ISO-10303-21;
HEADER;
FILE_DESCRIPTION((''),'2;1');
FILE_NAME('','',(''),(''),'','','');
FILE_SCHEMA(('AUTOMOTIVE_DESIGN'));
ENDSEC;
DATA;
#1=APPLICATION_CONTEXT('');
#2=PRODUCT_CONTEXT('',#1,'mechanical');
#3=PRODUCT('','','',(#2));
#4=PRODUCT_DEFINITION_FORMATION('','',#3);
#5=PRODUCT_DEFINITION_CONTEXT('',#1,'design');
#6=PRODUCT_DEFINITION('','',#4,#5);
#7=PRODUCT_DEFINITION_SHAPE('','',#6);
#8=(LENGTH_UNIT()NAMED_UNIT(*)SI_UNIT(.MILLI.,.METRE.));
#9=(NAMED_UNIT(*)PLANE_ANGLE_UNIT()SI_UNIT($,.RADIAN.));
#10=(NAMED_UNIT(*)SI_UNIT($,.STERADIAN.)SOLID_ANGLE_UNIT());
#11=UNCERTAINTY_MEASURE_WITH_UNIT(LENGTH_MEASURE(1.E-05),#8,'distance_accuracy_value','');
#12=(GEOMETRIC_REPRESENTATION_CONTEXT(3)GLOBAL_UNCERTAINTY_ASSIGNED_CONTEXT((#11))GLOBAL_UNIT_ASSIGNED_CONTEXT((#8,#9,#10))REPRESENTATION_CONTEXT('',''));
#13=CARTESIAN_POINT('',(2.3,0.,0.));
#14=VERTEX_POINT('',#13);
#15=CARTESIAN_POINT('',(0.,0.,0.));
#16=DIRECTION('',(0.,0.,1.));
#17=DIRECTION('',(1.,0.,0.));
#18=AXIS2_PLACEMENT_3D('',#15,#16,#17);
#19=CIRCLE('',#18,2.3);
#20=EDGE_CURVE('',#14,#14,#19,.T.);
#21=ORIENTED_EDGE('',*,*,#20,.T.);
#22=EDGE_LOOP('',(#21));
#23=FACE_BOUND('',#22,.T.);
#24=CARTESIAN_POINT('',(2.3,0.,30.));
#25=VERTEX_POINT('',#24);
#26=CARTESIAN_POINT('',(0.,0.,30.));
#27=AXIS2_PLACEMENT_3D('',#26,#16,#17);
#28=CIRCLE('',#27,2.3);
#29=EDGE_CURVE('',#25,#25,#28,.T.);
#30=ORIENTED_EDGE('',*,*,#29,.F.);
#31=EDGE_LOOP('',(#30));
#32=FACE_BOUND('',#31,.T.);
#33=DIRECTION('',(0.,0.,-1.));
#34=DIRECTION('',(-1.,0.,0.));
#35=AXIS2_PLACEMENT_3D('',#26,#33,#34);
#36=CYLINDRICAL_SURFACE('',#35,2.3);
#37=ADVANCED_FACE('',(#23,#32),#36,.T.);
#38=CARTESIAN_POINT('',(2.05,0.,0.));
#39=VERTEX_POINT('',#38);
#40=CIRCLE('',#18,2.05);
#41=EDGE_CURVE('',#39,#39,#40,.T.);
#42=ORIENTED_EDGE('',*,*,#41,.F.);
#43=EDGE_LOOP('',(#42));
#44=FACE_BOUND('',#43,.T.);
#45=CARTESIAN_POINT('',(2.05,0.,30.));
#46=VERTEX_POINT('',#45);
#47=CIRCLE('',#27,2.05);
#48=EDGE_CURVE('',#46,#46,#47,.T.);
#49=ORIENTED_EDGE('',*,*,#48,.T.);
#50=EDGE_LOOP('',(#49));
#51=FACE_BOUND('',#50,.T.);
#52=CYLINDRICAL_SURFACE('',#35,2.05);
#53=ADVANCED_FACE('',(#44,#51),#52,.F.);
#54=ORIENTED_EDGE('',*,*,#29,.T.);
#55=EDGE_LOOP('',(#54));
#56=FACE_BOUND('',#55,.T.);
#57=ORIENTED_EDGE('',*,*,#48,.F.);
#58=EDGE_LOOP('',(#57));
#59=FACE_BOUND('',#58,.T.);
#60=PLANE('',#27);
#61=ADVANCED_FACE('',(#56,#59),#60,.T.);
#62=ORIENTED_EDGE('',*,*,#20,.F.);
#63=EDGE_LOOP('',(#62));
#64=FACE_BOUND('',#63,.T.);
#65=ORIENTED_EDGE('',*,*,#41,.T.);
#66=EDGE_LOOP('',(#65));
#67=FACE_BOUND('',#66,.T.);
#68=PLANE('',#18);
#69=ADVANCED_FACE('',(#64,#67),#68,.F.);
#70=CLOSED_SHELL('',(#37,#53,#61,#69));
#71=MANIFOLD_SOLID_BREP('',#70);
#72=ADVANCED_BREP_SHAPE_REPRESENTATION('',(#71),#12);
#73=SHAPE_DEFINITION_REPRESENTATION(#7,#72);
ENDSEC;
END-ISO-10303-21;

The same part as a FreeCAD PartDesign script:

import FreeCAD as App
import Part
import Sketcher

V = App.Vector
Q = App.Units.Quantity

doc = App.newDocument("Part")
body = doc.addObject("PartDesign::Body", "Body")

sketch1 = body.newObject("Sketcher::SketchObject", "Sketch")
sketch1.AttachmentSupport = (doc.getObject("XY_Plane"), [""])
sketch1.MapMode = "FlatFace"
sketch1.addGeometry([
    Part.Circle(V(0, 0, 0), V(0, 0, 1), 2.3),
    Part.Circle(V(0, 0, 0), V(0, 0, 1), 2),
], False)
sketch1.addConstraint([
    Sketcher.Constraint("Coincident", 0, 3, -1, 1),
    Sketcher.Constraint("Coincident", 1, 3, -1, 1),
    Sketcher.Constraint("Diameter", 0, Q("4.6 mm")),
    Sketcher.Constraint("Diameter", 1, Q("4.1 mm")),
])
pad1 = body.newObject("PartDesign::Pad", "Pad")
pad1.Profile = sketch1
pad1.Length = 30

doc.recompute()
